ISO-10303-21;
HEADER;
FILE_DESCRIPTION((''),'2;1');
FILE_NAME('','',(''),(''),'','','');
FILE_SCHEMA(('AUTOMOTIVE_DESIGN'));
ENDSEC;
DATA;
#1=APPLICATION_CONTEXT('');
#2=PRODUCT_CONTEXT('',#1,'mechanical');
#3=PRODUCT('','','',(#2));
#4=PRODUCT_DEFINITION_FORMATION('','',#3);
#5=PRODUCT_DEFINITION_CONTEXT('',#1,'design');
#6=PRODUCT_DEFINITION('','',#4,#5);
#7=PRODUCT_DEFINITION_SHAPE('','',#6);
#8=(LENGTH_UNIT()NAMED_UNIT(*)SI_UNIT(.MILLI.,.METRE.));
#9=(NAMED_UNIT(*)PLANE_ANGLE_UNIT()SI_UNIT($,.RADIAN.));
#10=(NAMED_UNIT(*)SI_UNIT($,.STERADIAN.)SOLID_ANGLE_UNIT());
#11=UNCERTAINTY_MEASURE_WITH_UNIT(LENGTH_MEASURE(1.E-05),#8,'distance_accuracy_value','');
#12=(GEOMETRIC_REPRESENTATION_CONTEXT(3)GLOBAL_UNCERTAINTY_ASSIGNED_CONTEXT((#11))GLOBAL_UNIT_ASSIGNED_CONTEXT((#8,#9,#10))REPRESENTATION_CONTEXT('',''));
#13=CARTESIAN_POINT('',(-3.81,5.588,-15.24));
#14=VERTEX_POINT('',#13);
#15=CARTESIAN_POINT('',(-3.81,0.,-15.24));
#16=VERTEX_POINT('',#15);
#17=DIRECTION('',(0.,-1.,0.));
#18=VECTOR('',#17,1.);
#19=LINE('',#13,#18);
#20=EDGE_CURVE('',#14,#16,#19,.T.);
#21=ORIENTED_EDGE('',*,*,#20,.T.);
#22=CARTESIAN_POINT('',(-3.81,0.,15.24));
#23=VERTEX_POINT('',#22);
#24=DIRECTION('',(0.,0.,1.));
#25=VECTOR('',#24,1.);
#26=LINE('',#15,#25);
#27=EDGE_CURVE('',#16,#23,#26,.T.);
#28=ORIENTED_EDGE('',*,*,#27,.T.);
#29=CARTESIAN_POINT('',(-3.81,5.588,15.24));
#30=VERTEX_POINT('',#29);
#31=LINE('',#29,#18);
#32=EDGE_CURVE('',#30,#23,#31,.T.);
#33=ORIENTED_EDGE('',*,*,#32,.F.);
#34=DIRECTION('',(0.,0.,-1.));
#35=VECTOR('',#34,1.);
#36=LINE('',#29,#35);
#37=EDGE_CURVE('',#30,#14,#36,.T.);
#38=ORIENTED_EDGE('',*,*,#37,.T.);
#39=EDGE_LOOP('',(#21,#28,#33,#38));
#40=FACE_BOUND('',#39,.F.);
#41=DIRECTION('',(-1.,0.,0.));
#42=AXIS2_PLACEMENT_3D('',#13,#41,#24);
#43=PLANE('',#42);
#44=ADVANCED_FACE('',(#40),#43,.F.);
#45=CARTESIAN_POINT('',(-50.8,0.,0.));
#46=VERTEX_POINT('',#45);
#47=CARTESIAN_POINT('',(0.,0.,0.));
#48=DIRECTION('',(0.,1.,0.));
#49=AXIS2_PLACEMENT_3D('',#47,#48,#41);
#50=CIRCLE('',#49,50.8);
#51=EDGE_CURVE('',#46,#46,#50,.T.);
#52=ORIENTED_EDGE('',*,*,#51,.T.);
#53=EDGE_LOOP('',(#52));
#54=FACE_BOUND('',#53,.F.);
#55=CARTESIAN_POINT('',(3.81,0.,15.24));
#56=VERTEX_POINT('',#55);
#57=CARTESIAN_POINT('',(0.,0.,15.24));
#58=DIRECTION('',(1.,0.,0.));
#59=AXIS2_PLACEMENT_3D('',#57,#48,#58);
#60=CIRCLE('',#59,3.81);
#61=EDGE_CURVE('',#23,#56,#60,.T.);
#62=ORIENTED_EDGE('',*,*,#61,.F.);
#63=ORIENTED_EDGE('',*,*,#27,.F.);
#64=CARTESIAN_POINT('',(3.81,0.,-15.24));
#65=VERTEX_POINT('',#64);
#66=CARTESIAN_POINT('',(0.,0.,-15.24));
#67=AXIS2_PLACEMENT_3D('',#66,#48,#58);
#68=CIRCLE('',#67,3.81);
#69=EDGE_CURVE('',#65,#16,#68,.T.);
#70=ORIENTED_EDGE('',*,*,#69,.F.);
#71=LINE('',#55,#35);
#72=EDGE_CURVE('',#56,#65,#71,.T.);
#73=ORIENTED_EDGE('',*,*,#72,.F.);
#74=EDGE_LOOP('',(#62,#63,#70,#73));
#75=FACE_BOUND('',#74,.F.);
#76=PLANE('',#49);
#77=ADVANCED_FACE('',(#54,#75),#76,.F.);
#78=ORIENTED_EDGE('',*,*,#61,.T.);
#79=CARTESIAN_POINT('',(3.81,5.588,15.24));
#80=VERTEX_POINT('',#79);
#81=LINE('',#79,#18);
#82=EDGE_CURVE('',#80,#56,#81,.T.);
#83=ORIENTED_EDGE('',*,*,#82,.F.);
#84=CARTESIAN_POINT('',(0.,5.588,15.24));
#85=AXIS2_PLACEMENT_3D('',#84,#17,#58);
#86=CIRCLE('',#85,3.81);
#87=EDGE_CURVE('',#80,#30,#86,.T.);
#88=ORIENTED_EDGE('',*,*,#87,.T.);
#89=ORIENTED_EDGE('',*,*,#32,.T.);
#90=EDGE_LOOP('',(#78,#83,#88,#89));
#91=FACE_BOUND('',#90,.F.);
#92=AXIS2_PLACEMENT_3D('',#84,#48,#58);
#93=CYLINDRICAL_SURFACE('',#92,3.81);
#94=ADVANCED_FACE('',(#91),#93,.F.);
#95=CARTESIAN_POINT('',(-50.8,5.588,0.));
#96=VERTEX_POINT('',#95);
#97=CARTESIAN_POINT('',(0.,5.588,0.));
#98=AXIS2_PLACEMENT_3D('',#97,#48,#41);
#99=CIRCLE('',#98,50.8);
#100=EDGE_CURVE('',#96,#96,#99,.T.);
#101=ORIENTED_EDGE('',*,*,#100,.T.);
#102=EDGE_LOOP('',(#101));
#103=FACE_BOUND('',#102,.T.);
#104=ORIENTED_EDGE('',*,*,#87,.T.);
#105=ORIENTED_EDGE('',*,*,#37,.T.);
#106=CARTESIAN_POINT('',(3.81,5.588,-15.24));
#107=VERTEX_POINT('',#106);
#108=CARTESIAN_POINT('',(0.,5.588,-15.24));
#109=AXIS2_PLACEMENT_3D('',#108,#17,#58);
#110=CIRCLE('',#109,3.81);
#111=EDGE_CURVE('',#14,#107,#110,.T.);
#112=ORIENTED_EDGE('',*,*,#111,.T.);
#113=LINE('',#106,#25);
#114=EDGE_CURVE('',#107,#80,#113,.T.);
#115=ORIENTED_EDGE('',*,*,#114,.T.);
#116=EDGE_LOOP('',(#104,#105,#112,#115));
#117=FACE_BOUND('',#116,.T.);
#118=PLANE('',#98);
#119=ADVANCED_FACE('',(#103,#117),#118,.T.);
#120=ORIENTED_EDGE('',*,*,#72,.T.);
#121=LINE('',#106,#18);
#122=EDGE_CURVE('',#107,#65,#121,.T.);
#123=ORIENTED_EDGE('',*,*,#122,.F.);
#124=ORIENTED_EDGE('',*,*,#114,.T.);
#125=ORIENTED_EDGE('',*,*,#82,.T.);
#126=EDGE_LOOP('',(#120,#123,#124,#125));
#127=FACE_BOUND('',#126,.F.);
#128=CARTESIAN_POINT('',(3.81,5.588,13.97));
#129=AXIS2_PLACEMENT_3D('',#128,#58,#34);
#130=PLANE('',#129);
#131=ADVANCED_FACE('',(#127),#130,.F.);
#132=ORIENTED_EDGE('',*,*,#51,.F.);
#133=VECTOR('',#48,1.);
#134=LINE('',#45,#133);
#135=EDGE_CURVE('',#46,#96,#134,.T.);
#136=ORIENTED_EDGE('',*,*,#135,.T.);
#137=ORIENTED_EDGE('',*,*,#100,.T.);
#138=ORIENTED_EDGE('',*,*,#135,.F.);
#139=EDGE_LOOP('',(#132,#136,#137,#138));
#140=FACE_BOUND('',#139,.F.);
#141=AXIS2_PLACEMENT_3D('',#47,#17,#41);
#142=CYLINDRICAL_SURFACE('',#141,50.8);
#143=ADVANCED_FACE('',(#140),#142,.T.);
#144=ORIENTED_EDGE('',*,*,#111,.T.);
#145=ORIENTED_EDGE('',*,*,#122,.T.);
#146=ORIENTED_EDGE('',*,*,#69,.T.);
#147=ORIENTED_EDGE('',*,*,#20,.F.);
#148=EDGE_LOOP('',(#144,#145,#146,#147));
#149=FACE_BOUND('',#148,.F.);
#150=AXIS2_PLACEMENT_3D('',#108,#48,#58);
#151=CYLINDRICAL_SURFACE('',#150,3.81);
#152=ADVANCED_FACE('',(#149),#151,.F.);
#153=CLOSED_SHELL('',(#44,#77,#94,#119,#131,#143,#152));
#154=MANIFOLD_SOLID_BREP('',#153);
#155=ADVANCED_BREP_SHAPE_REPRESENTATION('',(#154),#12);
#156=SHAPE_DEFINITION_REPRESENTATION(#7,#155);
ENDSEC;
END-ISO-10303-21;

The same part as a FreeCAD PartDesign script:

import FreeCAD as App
import Part
import Sketcher
from FreeCAD import Vector
Q = App.Units.Quantity

doc = App.newDocument("Part")
params = doc.addObject("Spreadsheet::Sheet", "Params")
for row, (alias, value) in enumerate([
    ("sketch1_diameter", "4 in"),
    ("pad1_length", "0.22 in"),
    ("sketch2_width", "0.3 in"),
    ("sketch2_height", "1.1 in"),
    ("pocket1_length", "0.22 in"),
    ("sketch3_height", "1.2 in"),
    ("sketch3_width", "0.3 in"),
    ("pocket2_length", "0.22 in"),
    ("sketch4_diameter", "0.3 in"),
    ("pocket3_length", "0.22 in"),
    ("sketch5_diameter", "0.3 in"),
    ("pocket4_length", "0.22 in"),
], start=1):
    params.set(f"A{row}", alias)
    params.set(f"B{row}", "=" + value)
    params.setAlias(f"B{row}", alias)

body = doc.addObject("PartDesign::Body", "Body")

sketch1 = body.newObject("Sketcher::SketchObject", "Sketch")
sketch1.AttachmentSupport = (doc.getObject("XZ_Plane"), [""])
sketch1.MapMode = "FlatFace"
sketch1.addGeometry(Part.Circle(Vector(0, 0, 0), Vector(0, 0, 1), 51), False)
sketch1.addConstraint(Sketcher.Constraint("Coincident", 0, 3, -1, 1))
sketch1.addConstraint(Sketcher.Constraint("Diameter", 0, Q("4 in")))
sketch1.setExpression("Constraints[1]", "Params.sketch1_diameter")
pad1 = body.newObject("PartDesign::Pad", "Pad")
pad1.Profile = sketch1
pad1.setExpression("Length", "Params.pad1_length")
pad1.Reversed = True

sketch2 = body.newObject("Sketcher::SketchObject", "Sketch001")
sketch2.AttachmentSupport = (doc.getObject("XZ_Plane"), [""])
sketch2.MapMode = "FlatFace"
sketch2.AttachmentOffset = App.Placement(Vector(0, 0, -0.22 * 25.4), App.Rotation())
sketch2.addGeometry(Part.LineSegment(Vector(4, 14, 0), Vector(4, -14, 0)), False)
sketch2.addGeometry(Part.LineSegment(Vector(4, -14, 0), Vector(-4, -14, 0)), False)
sketch2.addGeometry(Part.LineSegment(Vector(-4, -14, 0), Vector(-4, 14, 0)), False)
sketch2.addGeometry(Part.LineSegment(Vector(-4, 14, 0), Vector(4, 14, 0)), False)
sketch2.addConstraint(Sketcher.Constraint("Coincident", 0, 2, 1, 1))
sketch2.addConstraint(Sketcher.Constraint("Coincident", 1, 2, 2, 1))
sketch2.addConstraint(Sketcher.Constraint("Coincident", 2, 2, 3, 1))
sketch2.addConstraint(Sketcher.Constraint("Coincident", 3, 2, 0, 1))
sketch2.addConstraint(Sketcher.Constraint("Vertical", 0))
sketch2.addConstraint(Sketcher.Constraint("Horizontal", 1))
sketch2.addConstraint(Sketcher.Constraint("Vertical", 2))
sketch2.addConstraint(Sketcher.Constraint("Horizontal", 3))
sketch2.addConstraint(Sketcher.Constraint("Symmetric", 0, 2, 2, 2, -1, 1))
sketch2.addConstraint(Sketcher.Constraint("DistanceX", 1, 2, 1, 1, Q("0.3 in")))
sketch2.addConstraint(Sketcher.Constraint("DistanceY", 0, 2, 0, 1, Q("1.1 in")))
sketch2.setExpression("Constraints[9]", "Params.sketch2_width")
sketch2.setExpression("Constraints[10]", "Params.sketch2_height")
pocket1 = body.newObject("PartDesign::Pocket", "Pocket")
pocket1.Profile = sketch2
pocket1.setExpression("Length", "Params.pocket1_length")
pocket1.Reversed = True

sketch3 = body.newObject("Sketcher::SketchObject", "Sketch002")
sketch3.AttachmentSupport = (doc.getObject("XZ_Plane"), [""])
sketch3.MapMode = "FlatFace"
sketch3.AttachmentOffset = App.Placement(Vector(0, 0, -0.22 * 25.4), App.Rotation())
sketch3.addGeometry(Part.LineSegment(Vector(4, 15, 0), Vector(4, -15, 0)), False)
sketch3.addGeometry(Part.LineSegment(Vector(4, -15, 0), Vector(-4, -15, 0)), False)
sketch3.addGeometry(Part.LineSegment(Vector(-4, -15, 0), Vector(-4, 15, 0)), False)
sketch3.addGeometry(Part.LineSegment(Vector(-4, 15, 0), Vector(4, 15, 0)), False)
sketch3.addConstraint(Sketcher.Constraint("Coincident", 0, 2, 1, 1))
sketch3.addConstraint(Sketcher.Constraint("Coincident", 1, 2, 2, 1))
sketch3.addConstraint(Sketcher.Constraint("Coincident", 2, 2, 3, 1))
sketch3.addConstraint(Sketcher.Constraint("Coincident", 3, 2, 0, 1))
sketch3.addConstraint(Sketcher.Constraint("Vertical", 0))
sketch3.addConstraint(Sketcher.Constraint("Horizontal", 1))
sketch3.addConstraint(Sketcher.Constraint("Vertical", 2))
sketch3.addConstraint(Sketcher.Constraint("Horizontal", 3))
sketch3.addConstraint(Sketcher.Constraint("Symmetric", 0, 2, 2, 2, -1, 1))
sketch3.addConstraint(Sketcher.Constraint("DistanceY", 0, 2, 0, 1, Q("1.2 in")))
sketch3.addConstraint(Sketcher.Constraint("DistanceX", 1, 2, 1, 1, Q("0.3 in")))
sketch3.setExpression("Constraints[9]", "Params.sketch3_height")
sketch3.setExpression("Constraints[10]", "Params.sketch3_width")
pocket2 = body.newObject("PartDesign::Pocket", "Pocket001")
pocket2.Profile = sketch3
pocket2.setExpression("Length", "Params.pocket2_length")
pocket2.Reversed = True

sketch4 = body.newObject("Sketcher::SketchObject", "Sketch003")
sketch4.AttachmentSupport = (doc.getObject("XZ_Plane"), [""])
sketch4.MapMode = "FlatFace"
sketch4.AttachmentOffset = App.Placement(Vector(0, 0, -0.22 * 25.4), App.Rotation())
sketch4.addGeometry(Part.Circle(Vector(0, -15.2, 0), Vector(0, 0, 1), 3.8), False)
sketch4.addConstraint(Sketcher.Constraint("PointOnObject", 0, 3, -2))
sketch4.addConstraint(Sketcher.Constraint("Diameter", 0, Q("0.3 in")))
sketch4.addConstraint(Sketcher.Constraint("DistanceY", 0, 3, -1, 1, Q("0.6 in")))
sketch4.setExpression("Constraints[1]", "Params.sketch4_diameter")
pocket3 = body.newObject("PartDesign::Pocket", "Pocket002")
pocket3.Profile = sketch4
pocket3.setExpression("Length", "Params.pocket3_length")
pocket3.Reversed = True

sketch5 = body.newObject("Sketcher::SketchObject", "Sketch004")
sketch5.AttachmentSupport = (doc.getObject("XZ_Plane"), [""])
sketch5.MapMode = "FlatFace"
sketch5.AttachmentOffset = App.Placement(Vector(0, 0, -0.22 * 25.4), App.Rotation())
sketch5.addGeometry(Part.Circle(Vector(0, 15.2, 0), Vector(0, 0, 1), 3.8), False)
sketch5.addConstraint(Sketcher.Constraint("PointOnObject", 0, 3, -2))
sketch5.addConstraint(Sketcher.Constraint("Diameter", 0, Q("0.3 in")))
sketch5.addConstraint(Sketcher.Constraint("DistanceY", -1, 1, 0, 3, Q("0.6 in")))
sketch5.setExpression("Constraints[1]", "Params.sketch5_diameter")
pocket4 = body.newObject("PartDesign::Pocket", "Pocket003")
pocket4.Profile = sketch5
pocket4.setExpression("Length", "Params.pocket4_length")
pocket4.Reversed = True

doc.recompute()
